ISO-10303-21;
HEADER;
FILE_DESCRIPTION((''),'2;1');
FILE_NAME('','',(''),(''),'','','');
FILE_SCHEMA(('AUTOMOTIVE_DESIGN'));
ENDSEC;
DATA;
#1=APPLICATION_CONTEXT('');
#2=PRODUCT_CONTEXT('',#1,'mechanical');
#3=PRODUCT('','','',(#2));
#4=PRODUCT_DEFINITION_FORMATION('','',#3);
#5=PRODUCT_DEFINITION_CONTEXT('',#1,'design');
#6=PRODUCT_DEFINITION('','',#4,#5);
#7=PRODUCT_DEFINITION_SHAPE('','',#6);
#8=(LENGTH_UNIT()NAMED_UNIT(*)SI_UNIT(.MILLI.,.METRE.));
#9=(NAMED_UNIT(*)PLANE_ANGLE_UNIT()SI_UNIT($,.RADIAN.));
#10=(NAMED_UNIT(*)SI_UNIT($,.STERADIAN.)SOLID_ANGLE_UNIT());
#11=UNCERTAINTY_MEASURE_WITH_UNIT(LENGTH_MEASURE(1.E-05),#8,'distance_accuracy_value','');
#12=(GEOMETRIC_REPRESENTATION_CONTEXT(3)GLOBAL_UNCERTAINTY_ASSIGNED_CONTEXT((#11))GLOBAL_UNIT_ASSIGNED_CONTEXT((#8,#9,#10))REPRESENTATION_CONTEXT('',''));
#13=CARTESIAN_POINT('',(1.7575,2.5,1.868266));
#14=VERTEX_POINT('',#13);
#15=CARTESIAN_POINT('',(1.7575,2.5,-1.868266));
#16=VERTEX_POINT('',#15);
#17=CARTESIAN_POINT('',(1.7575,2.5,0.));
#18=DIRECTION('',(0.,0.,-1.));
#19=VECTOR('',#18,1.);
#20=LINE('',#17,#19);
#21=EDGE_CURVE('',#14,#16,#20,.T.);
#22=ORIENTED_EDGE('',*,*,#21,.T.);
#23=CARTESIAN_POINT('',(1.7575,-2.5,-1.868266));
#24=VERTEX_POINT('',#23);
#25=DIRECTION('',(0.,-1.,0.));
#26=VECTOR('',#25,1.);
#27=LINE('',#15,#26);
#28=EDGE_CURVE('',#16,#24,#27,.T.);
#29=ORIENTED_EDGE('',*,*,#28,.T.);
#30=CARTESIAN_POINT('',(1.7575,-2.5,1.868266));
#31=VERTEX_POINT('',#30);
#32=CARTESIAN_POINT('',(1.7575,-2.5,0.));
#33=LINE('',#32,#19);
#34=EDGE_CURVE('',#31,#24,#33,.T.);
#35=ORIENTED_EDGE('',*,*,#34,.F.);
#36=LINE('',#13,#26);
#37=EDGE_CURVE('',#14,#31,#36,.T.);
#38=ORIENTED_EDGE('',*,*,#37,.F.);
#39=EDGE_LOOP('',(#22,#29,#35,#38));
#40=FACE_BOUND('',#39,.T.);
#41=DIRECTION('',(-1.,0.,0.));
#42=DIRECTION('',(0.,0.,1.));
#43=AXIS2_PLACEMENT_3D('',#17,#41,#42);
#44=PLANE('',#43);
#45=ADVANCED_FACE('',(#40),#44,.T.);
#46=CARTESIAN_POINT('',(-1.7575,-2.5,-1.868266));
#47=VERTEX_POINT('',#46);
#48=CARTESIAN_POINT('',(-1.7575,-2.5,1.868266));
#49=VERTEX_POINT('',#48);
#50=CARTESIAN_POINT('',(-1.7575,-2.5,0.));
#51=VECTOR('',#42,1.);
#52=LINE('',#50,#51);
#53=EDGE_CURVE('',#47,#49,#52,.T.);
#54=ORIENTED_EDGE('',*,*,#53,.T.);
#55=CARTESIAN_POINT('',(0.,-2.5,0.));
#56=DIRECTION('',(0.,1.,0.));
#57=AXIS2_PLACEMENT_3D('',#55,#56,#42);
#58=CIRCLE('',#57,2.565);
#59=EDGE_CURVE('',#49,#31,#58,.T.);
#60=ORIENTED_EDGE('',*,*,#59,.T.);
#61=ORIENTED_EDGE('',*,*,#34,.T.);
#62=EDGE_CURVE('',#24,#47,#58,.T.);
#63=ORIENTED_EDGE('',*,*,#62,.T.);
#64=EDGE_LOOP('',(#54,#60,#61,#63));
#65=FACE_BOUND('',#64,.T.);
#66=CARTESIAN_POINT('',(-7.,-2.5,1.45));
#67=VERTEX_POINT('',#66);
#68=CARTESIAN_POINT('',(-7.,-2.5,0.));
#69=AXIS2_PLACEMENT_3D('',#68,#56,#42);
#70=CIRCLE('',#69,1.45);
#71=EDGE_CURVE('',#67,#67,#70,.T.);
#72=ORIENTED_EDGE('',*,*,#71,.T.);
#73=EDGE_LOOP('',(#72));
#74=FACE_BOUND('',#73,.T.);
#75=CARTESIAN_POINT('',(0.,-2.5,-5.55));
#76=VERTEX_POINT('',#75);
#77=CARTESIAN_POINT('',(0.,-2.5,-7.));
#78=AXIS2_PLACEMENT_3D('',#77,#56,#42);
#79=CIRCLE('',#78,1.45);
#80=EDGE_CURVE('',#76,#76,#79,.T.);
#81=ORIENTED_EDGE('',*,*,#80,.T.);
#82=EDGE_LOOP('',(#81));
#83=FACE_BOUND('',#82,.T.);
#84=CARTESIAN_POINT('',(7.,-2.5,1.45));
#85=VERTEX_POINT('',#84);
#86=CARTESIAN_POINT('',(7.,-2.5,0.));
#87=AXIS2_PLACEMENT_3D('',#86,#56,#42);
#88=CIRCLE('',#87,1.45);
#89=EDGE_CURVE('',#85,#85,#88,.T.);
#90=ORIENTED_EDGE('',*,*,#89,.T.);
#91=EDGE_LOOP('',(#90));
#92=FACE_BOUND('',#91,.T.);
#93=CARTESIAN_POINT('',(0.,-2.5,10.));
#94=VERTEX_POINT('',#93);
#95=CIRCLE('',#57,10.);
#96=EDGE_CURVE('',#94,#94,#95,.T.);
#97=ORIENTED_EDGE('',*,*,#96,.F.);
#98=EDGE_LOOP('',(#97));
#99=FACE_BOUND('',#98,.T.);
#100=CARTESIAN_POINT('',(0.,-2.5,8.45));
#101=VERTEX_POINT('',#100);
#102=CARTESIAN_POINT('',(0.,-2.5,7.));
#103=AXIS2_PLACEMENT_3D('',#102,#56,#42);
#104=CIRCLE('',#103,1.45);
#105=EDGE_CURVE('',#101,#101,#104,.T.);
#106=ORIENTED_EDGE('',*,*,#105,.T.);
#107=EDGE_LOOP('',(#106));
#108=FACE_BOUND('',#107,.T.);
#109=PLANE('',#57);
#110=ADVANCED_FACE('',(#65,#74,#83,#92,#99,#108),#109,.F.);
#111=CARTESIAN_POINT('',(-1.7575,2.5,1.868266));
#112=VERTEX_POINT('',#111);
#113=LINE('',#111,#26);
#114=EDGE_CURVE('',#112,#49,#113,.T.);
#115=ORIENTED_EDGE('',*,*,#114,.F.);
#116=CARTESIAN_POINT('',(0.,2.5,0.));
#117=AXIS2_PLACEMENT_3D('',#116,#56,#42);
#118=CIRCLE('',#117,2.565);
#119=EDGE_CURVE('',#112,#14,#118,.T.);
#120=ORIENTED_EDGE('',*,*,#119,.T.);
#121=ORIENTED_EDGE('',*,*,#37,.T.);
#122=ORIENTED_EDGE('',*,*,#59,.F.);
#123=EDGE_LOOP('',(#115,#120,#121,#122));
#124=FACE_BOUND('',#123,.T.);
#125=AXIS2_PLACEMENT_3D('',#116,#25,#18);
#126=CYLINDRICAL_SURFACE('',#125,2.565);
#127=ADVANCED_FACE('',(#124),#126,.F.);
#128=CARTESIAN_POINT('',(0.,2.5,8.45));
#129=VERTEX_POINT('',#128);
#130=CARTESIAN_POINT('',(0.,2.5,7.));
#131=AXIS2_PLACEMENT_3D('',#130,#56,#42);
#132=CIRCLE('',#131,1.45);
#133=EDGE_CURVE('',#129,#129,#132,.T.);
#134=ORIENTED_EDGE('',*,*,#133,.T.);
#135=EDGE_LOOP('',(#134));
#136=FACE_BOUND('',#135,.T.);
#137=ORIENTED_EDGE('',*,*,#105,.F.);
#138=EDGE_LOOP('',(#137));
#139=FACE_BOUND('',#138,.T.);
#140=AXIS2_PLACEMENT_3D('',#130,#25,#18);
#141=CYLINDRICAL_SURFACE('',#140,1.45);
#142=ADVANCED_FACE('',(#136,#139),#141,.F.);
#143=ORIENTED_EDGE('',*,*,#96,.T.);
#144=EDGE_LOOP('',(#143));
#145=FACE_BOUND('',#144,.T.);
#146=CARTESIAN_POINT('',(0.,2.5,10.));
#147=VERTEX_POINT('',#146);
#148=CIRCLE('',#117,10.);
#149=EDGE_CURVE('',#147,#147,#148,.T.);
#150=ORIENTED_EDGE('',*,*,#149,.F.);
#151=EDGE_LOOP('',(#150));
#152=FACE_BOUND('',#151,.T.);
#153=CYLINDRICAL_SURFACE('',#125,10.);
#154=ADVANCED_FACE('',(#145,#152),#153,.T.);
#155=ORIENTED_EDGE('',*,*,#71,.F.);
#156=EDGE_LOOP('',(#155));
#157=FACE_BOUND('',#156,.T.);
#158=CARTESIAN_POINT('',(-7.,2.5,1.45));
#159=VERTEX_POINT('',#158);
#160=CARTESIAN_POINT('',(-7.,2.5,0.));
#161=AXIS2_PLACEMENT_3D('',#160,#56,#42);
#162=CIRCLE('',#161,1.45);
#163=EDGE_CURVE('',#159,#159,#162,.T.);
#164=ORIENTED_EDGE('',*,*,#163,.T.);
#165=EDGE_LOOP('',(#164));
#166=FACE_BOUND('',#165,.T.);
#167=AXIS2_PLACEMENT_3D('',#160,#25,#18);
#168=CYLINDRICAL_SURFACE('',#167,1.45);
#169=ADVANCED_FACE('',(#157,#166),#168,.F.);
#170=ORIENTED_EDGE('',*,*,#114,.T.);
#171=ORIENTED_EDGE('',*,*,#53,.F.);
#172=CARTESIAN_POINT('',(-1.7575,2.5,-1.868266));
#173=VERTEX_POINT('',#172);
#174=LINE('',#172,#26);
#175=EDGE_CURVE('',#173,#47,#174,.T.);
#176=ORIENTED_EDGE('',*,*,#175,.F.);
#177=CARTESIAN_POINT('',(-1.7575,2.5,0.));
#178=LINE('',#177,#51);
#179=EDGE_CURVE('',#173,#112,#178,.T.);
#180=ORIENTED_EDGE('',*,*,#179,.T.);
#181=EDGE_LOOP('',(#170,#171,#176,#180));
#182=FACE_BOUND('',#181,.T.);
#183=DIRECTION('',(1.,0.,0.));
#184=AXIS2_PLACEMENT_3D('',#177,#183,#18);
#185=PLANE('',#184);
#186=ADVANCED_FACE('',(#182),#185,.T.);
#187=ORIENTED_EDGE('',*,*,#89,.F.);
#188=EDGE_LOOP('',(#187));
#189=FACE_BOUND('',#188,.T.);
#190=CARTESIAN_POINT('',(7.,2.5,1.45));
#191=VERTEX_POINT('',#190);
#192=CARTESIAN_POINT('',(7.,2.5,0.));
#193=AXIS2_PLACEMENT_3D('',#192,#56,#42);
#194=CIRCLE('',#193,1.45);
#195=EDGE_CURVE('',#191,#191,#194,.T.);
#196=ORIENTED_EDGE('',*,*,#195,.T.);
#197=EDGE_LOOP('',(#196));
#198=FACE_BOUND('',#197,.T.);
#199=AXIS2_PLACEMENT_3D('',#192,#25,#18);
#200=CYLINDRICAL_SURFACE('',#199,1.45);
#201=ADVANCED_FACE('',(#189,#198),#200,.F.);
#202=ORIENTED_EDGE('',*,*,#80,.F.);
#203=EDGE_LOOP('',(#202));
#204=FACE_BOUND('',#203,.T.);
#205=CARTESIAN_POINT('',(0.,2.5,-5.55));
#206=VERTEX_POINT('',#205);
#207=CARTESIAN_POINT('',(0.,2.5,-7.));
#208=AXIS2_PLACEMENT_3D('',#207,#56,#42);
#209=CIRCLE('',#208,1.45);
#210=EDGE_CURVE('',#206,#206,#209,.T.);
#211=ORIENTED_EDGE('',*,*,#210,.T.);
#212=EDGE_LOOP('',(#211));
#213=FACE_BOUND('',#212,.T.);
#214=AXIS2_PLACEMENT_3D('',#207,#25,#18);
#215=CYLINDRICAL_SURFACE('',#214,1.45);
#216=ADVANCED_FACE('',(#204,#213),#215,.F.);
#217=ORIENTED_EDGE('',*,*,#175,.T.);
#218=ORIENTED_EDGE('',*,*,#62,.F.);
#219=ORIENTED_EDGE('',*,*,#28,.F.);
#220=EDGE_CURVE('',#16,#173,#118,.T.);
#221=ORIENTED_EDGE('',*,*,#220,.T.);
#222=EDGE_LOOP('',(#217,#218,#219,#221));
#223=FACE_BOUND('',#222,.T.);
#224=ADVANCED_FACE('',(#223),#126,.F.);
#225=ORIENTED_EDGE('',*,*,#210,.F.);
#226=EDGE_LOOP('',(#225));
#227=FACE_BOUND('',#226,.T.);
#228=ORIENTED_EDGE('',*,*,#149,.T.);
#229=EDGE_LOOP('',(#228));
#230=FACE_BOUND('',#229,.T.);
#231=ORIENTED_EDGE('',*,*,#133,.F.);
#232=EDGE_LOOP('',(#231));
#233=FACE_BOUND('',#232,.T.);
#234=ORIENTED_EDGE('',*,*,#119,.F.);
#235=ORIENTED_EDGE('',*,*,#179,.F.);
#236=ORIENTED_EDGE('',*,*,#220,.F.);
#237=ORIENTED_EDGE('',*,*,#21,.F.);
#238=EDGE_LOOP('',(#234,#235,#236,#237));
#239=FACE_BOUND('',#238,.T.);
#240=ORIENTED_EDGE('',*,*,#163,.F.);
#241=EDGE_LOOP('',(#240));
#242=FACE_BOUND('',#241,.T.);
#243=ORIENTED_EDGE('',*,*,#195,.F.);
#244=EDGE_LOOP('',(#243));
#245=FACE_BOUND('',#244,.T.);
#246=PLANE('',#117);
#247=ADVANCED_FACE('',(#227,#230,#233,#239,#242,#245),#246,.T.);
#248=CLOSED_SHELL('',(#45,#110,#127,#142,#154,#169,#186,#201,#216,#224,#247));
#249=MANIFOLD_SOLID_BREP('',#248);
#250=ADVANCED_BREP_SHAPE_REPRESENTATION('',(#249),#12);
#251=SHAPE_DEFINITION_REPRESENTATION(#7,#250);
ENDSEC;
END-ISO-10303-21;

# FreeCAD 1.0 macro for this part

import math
import FreeCAD as App
import Part
import Sketcher

V = App.Vector

doc = App.newDocument("Part")
body = doc.addObject("PartDesign::Body", "Body")

# Sketch on XZ plane
sketch1 = doc.addObject("Sketcher::SketchObject", "Sketch")
body.addObject(sketch1)
sketch1.AttachmentSupport = (doc.XZ_Plane, [""])
sketch1.MapMode = "FlatFace"
sketch1.addGeometry(Part.Circle(V(0, 0, 0), V(0, 0, 1), 10), False)
sketch1.addGeometry(Part.Circle(V(0, 7, 0), V(0, 0, 1), 1.45), False)
sketch1.addGeometry(Part.Circle(V(-7, 0, 0), V(0, 0, 1), 1.45), False)
sketch1.addGeometry(Part.ArcOfCircle(Part.Circle(V(0, 0, 0), V(0, 0, 1), 2.565), math.radians(-133.250173), math.radians(-46.749827)), False)
sketch1.addGeometry(Part.LineSegment(V(1.7575, -1.868266, 0), V(1.7575, 1.868266, 0)), False)
sketch1.addGeometry(Part.ArcOfCircle(Part.Circle(V(0, 0, 0), V(0, 0, 1), 2.565), math.radians(46.749827), math.radians(133.250173)), False)
sketch1.addGeometry(Part.LineSegment(V(-1.7575, 1.868266, 0), V(-1.7575, -1.868266, 0)), False)
sketch1.addGeometry(Part.Circle(V(7, 0, 0), V(0, 0, 1), 1.45), False)
sketch1.addGeometry(Part.Circle(V(0, -7, 0), V(0, 0, 1), 1.45), False)
sketch1.addConstraint(Sketcher.Constraint("Coincident", 3, 2, 4, 1))
sketch1.addConstraint(Sketcher.Constraint("Coincident", 4, 2, 5, 1))
sketch1.addConstraint(Sketcher.Constraint("Coincident", 5, 2, 6, 1))
sketch1.addConstraint(Sketcher.Constraint("Coincident", 6, 2, 3, 1))
sketch1.addConstraint(Sketcher.Constraint("Vertical", 4))
sketch1.addConstraint(Sketcher.Constraint("Vertical", 6))
sketch1.addConstraint(Sketcher.Constraint("Coincident", 0, 3, -1, 1))
sketch1.addConstraint(Sketcher.Constraint("Coincident", 3, 3, -1, 1))
sketch1.addConstraint(Sketcher.Constraint("Coincident", 5, 3, -1, 1))
sketch1.addConstraint(Sketcher.Constraint("Equal", 1, 2))
sketch1.addConstraint(Sketcher.Constraint("Equal", 3, 5))
sketch1.addConstraint(Sketcher.Constraint("Equal", 2, 7))
sketch1.addConstraint(Sketcher.Constraint("Equal", 7, 8))
sketch1.addConstraint(Sketcher.Constraint("Symmetric", 2, 3, 7, 3, -1, 1))
sketch1.addConstraint(Sketcher.Constraint("Symmetric", 1, 3, 8, 3, -1, 1))
sketch1.addConstraint(Sketcher.Constraint("PointOnObject", 1, 3, -2))
sketch1.addConstraint(Sketcher.Constraint("PointOnObject", 2, 3, -1))
sketch1.addConstraint(Sketcher.Constraint("Horizontal", 4, 2, 5, 2))
sketch1.addConstraint(Sketcher.Constraint("Diameter", 0, 20.0))
sketch1.addConstraint(Sketcher.Constraint("Diameter", 1, 2.9))
sketch1.addConstraint(Sketcher.Constraint("DistanceY", -1, 1, 1, 3, 7.0))
sketch1.addConstraint(Sketcher.Constraint("DistanceX", 2, 3, -1, 1, 7.0))
sketch1.addConstraint(Sketcher.Constraint("Radius", 3, 2.565))
sketch1.addConstraint(Sketcher.Constraint("DistanceX", 5, 2, 4, 2, 3.515))
pad1 = doc.addObject("PartDesign::Pad", "Pad")
body.addObject(pad1)
pad1.Profile = sketch1
pad1.Length = 5
pad1.Midplane = True

doc.recompute()
